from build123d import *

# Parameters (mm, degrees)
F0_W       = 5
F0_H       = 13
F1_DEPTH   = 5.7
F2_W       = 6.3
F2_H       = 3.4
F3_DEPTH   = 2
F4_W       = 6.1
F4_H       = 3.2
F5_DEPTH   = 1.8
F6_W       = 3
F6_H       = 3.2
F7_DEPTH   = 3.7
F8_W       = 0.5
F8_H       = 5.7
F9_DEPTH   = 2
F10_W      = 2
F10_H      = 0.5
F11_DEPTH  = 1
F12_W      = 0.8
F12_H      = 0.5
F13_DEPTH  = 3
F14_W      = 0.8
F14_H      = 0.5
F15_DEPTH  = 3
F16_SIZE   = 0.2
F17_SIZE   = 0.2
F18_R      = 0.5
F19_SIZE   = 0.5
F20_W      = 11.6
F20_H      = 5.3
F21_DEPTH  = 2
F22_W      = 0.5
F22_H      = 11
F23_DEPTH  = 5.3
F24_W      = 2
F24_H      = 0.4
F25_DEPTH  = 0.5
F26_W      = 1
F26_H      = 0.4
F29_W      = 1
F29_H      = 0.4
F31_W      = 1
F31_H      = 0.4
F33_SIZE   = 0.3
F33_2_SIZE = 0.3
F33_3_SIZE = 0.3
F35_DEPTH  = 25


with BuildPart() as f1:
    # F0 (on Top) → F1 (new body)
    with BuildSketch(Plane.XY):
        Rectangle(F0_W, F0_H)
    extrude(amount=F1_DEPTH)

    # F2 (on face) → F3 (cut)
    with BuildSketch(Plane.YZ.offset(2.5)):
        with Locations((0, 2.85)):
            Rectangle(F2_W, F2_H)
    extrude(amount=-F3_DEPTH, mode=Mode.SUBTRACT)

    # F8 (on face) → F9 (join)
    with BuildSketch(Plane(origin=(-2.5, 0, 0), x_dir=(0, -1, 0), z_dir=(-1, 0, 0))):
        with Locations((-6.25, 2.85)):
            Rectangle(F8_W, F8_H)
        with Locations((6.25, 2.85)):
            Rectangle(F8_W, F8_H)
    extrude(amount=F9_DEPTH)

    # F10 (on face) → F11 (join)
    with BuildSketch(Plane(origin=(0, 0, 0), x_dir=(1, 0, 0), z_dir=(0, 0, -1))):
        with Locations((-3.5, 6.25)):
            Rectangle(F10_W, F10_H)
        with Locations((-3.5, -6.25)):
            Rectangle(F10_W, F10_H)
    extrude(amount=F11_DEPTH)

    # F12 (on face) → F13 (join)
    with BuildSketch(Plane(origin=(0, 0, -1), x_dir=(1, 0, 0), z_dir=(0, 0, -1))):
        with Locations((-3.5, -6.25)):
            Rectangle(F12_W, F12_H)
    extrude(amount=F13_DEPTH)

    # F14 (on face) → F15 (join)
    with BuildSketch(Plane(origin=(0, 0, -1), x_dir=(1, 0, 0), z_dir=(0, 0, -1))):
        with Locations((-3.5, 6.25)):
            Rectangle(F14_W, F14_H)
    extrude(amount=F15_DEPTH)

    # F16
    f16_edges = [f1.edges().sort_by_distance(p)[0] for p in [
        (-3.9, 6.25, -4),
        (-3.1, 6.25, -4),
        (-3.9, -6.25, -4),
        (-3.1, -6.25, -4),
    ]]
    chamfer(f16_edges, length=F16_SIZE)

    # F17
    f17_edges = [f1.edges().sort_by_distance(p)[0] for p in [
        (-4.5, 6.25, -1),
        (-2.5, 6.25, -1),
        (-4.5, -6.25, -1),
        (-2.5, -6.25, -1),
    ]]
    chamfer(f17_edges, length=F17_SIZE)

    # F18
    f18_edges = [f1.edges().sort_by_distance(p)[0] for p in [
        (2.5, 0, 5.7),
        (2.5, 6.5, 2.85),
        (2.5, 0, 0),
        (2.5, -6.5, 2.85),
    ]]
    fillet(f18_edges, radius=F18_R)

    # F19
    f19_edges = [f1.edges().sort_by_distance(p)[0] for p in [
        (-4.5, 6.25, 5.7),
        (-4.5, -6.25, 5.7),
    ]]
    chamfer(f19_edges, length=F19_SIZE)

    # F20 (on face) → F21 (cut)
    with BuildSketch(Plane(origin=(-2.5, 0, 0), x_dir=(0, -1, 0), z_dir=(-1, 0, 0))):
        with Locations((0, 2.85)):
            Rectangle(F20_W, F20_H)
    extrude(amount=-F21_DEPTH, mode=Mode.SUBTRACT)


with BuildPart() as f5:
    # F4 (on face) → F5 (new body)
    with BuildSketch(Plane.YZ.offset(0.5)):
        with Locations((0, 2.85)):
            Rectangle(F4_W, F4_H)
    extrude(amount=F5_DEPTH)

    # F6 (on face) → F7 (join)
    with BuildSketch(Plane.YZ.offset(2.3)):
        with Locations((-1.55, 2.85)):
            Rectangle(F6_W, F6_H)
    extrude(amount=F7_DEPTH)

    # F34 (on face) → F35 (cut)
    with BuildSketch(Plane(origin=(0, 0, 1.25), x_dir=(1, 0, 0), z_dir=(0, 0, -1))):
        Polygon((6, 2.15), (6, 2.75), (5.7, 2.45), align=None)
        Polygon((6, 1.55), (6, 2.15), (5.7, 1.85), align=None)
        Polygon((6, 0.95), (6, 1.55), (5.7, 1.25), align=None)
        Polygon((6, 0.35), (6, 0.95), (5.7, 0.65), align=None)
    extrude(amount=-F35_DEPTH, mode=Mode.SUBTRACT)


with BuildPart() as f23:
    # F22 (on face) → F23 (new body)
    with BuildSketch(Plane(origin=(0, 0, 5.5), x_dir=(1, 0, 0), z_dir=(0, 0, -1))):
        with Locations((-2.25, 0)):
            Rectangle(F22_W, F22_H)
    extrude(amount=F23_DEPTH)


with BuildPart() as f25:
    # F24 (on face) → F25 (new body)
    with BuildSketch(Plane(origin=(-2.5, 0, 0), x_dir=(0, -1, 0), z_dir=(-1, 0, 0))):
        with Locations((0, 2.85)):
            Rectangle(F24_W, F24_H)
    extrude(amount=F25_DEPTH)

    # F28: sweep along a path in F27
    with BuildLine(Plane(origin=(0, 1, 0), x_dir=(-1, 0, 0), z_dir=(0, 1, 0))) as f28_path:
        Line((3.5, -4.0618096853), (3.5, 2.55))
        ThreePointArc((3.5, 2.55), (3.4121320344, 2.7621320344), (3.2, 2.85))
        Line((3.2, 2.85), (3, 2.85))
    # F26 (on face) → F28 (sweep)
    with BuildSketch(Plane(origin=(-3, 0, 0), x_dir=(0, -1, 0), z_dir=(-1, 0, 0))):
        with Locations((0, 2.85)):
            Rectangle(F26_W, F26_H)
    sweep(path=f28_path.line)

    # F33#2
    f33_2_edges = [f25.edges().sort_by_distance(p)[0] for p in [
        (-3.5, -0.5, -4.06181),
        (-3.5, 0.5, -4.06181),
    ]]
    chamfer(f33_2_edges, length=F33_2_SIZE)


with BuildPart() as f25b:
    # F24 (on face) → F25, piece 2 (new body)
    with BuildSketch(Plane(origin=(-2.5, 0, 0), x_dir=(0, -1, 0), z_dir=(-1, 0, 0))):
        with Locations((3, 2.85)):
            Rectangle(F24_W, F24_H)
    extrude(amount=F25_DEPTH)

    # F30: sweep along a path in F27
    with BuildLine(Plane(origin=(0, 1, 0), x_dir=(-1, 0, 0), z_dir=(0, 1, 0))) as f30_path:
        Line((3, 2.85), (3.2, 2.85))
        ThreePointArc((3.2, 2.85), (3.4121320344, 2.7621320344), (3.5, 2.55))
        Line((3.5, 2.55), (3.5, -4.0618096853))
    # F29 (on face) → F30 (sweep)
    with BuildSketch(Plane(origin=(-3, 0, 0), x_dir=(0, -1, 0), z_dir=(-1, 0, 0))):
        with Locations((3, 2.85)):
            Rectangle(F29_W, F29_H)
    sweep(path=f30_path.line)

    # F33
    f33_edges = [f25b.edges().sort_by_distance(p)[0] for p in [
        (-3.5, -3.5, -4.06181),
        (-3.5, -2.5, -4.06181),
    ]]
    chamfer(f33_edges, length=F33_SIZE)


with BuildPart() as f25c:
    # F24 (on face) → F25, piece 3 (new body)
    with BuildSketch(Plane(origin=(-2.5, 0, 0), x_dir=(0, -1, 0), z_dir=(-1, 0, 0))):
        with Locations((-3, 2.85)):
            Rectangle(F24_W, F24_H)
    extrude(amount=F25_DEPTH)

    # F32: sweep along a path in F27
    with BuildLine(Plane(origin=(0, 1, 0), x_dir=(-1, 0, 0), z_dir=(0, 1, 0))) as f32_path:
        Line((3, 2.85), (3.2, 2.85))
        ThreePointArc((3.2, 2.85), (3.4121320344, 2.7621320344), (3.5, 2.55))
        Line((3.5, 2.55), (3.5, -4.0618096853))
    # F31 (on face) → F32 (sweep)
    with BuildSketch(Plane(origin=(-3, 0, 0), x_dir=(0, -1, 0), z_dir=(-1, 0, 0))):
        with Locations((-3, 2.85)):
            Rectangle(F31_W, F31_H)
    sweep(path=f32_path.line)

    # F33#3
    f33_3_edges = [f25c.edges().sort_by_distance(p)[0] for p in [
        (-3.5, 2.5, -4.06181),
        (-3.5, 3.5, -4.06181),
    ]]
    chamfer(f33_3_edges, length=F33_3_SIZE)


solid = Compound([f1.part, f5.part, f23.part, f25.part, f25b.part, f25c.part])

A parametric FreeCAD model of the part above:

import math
import FreeCAD as App
import Part
import Sketcher


def edges_at(feature, points):
    """Names of the edges that pass closest to the given points."""
    edges = feature.Shape.Edges
    near = lambda p: min(range(len(edges)), key=lambda i: edges[i].distToShape(Part.Vertex(*p))[0])
    return sorted({f"Edge{near(p) + 1}" for p in points})

doc = App.newDocument("Part")
body = doc.addObject("PartDesign::Body", "Body")

sketch1 = body.newObject("Sketcher::SketchObject", "Sketch")
sketch1.AttachmentSupport = (doc.getObject("XY_Plane"), [""])
sketch1.MapMode = "FlatFace"
sketch1.addGeometry([
    Part.LineSegment(App.Vector(-2.5, 6.5, 0), App.Vector(-2.5, -6.5, 0)),
    Part.LineSegment(App.Vector(-2.5, -6.5, 0), App.Vector(2.5, -6.5, 0)),
    Part.LineSegment(App.Vector(2.5, -6.5, 0), App.Vector(2.5, 6.5, 0)),
    Part.LineSegment(App.Vector(2.5, 6.5, 0), App.Vector(-2.5, 6.5, 0)),
], False)
sketch1.addConstraint([
    Sketcher.Constraint("Coincident", 0, 2, 1, 1),
    Sketcher.Constraint("Coincident", 1, 2, 2, 1),
    Sketcher.Constraint("Coincident", 2, 2, 3, 1),
    Sketcher.Constraint("Coincident", 3, 2, 0, 1),
    Sketcher.Constraint("Vertical", 0),
    Sketcher.Constraint("Horizontal", 1),
    Sketcher.Constraint("Vertical", 2),
    Sketcher.Constraint("Horizontal", 3),
    Sketcher.Constraint("Symmetric", 0, 2, 2, 2, -1, 1),
    Sketcher.Constraint("DistanceX", 1, 1, 1, 2, 5.0),
    Sketcher.Constraint("DistanceY", 0, 2, 0, 1, 13.0),
])
pad1 = body.newObject("PartDesign::Pad", "Pad")
pad1.Profile = sketch1
pad1.Length = 5.7

sketch2 = body.newObject("Sketcher::SketchObject", "Sketch001")
sketch2.AttachmentSupport = (doc.getObject("YZ_Plane"), [""])
sketch2.MapMode = "FlatFace"
sketch2.AttachmentOffset = App.Placement(App.Vector(0, 0, 2.5), App.Rotation())
sketch2.addGeometry([
    Part.LineSegment(App.Vector(-3.15, 4.55, 0), App.Vector(-3.15, 1.15, 0)),
    Part.LineSegment(App.Vector(-3.15, 1.15, 0), App.Vector(3.15, 1.15, 0)),
    Part.LineSegment(App.Vector(3.15, 1.15, 0), App.Vector(3.15, 4.55, 0)),
    Part.LineSegment(App.Vector(3.15, 4.55, 0), App.Vector(-3.15, 4.55, 0)),
], False)
sketch2.addConstraint([
    Sketcher.Constraint("Coincident", 0, 2, 1, 1),
    Sketcher.Constraint("Coincident", 1, 2, 2, 1),
    Sketcher.Constraint("Coincident", 2, 2, 3, 1),
    Sketcher.Constraint("Coincident", 3, 2, 0, 1),
    Sketcher.Constraint("Vertical", 0),
    Sketcher.Constraint("Horizontal", 1),
    Sketcher.Constraint("Vertical", 2),
    Sketcher.Constraint("Horizontal", 3),
    Sketcher.Constraint("DistanceX", 1, 1, 1, 2, 6.3),
    Sketcher.Constraint("DistanceY", 0, 2, 0, 1, 3.4),
    Sketcher.Constraint("DistanceX", 0, 2, -1, 1, 3.15),
    Sketcher.Constraint("DistanceY", -1, 1, 0, 2, 1.15),
])
pocket1 = body.newObject("PartDesign::Pocket", "Pocket")
pocket1.Profile = sketch2
pocket1.Length = 2

sketch3 = body.newObject("Sketcher::SketchObject", "Sketch002")
sketch3.AttachmentSupport = (doc.getObject("YZ_Plane"), [""])
sketch3.MapMode = "FlatFace"
sketch3.AttachmentOffset = App.Placement(App.Vector(0, 0, -2.5), App.Rotation())
sketch3.addGeometry([
    Part.LineSegment(App.Vector(6.5, 5.7, 0), App.Vector(6.5, 0, 0)),
    Part.LineSegment(App.Vector(6.5, 0, 0), App.Vector(6, 0, 0)),
    Part.LineSegment(App.Vector(6, 0, 0), App.Vector(6, 5.7, 0)),
    Part.LineSegment(App.Vector(6, 5.7, 0), App.Vector(6.5, 5.7, 0)),
    Part.LineSegment(App.Vector(-6, 5.7, 0), App.Vector(-6, 0, 0)),
    Part.LineSegment(App.Vector(-6, 0, 0), App.Vector(-6.5, 0, 0)),
    Part.LineSegment(App.Vector(-6.5, 0, 0), App.Vector(-6.5, 5.7, 0)),
    Part.LineSegment(App.Vector(-6.5, 5.7, 0), App.Vector(-6, 5.7, 0)),
], False)
sketch3.addConstraint([
    Sketcher.Constraint("Coincident", 0, 2, 1, 1),
    Sketcher.Constraint("Coincident", 1, 2, 2, 1),
    Sketcher.Constraint("Coincident", 2, 2, 3, 1),
    Sketcher.Constraint("Coincident", 3, 2, 0, 1),
    Sketcher.Constraint("Coincident", 4, 2, 5, 1),
    Sketcher.Constraint("Coincident", 5, 2, 6, 1),
    Sketcher.Constraint("Coincident", 6, 2, 7, 1),
    Sketcher.Constraint("Coincident", 7, 2, 4, 1),
    Sketcher.Constraint("Vertical", 0),
    Sketcher.Constraint("Horizontal", 1),
    Sketcher.Constraint("Vertical", 2),
    Sketcher.Constraint("Horizontal", 3),
    Sketcher.Constraint("Vertical", 4),
    Sketcher.Constraint("Horizontal", 5),
    Sketcher.Constraint("Vertical", 6),
    Sketcher.Constraint("Horizontal", 7),
    Sketcher.Constraint("Symmetric", 1, 2, 4, 2, -1, 1),
    Sketcher.Constraint("Symmetric", 0, 2, 5, 2, -2),
    Sketcher.Constraint("Horizontal", 3, 2, 6, 2),
    Sketcher.Constraint("DistanceX", 1, 2, 1, 1, 0.5),
    Sketcher.Constraint("DistanceY", 0, 2, 0, 1, 5.7),
    Sketcher.Constraint("DistanceX", -1, 1, 1, 2, 6.0),
])
pad2 = body.newObject("PartDesign::Pad", "Pad001")
pad2.Profile = sketch3
pad2.Length = 2
pad2.Reversed = True

sketch4 = body.newObject("Sketcher::SketchObject", "Sketch003")
sketch4.AttachmentSupport = (doc.getObject("XY_Plane"), [""])
sketch4.MapMode = "FlatFace"
sketch4.addGeometry([
    Part.LineSegment(App.Vector(-4.5, -6.5, 0), App.Vector(-4.5, -6, 0)),
    Part.LineSegment(App.Vector(-4.5, -6, 0), App.Vector(-2.5, -6, 0)),
    Part.LineSegment(App.Vector(-2.5, -6, 0), App.Vector(-2.5, -6.5, 0)),
    Part.LineSegment(App.Vector(-2.5, -6.5, 0), App.Vector(-4.5, -6.5, 0)),
    Part.LineSegment(App.Vector(-4.5, 6, 0), App.Vector(-4.5, 6.5, 0)),
    Part.LineSegment(App.Vector(-4.5, 6.5, 0), App.Vector(-2.5, 6.5, 0)),
    Part.LineSegment(App.Vector(-2.5, 6.5, 0), App.Vector(-2.5, 6, 0)),
    Part.LineSegment(App.Vector(-2.5, 6, 0), App.Vector(-4.5, 6, 0)),
], False)
sketch4.addConstraint([
    Sketcher.Constraint("Coincident", 0, 2, 1, 1),
    Sketcher.Constraint("Coincident", 1, 2, 2, 1),
    Sketcher.Constraint("Coincident", 2, 2, 3, 1),
    Sketcher.Constraint("Coincident", 3, 2, 0, 1),
    Sketcher.Constraint("Coincident", 4, 2, 5, 1),
    Sketcher.Constraint("Coincident", 5, 2, 6, 1),
    Sketcher.Constraint("Coincident", 6, 2, 7, 1),
    Sketcher.Constraint("Coincident", 7, 2, 4, 1),
    Sketcher.Constraint("Vertical", 0),
    Sketcher.Constraint("Horizontal", 1),
    Sketcher.Constraint("Vertical", 2),
    Sketcher.Constraint("Horizontal", 3),
    Sketcher.Constraint("Vertical", 4),
    Sketcher.Constraint("Horizontal", 5),
    Sketcher.Constraint("Vertical", 6),
    Sketcher.Constraint("Horizontal", 7),
    Sketcher.Constraint("Symmetric", 3, 2, 4, 2, -1),
    Sketcher.Constraint("Symmetric", 1, 2, 6, 2, -1),
    Sketcher.Constraint("DistanceX", 1, 1, 1, 2, 2.0),
    Sketcher.Constraint("DistanceY", 0, 1, 0, 2, 0.5),
    Sketcher.Constraint("DistanceY", 0, 2, -1, 1, 6.0),
    Sketcher.Constraint("DistanceX", 0, 2, -1, 1, 4.5),
])
pad3 = body.newObject("PartDesign::Pad", "Pad002")
pad3.Profile = sketch4
pad3.Length = 1
pad3.Reversed = True

sketch5 = body.newObject("Sketcher::SketchObject", "Sketch004")
sketch5.AttachmentSupport = (doc.getObject("XY_Plane"), [""])
sketch5.MapMode = "FlatFace"
sketch5.AttachmentOffset = App.Placement(App.Vector(0, 0, -1), App.Rotation())
sketch5.addGeometry([
    Part.LineSegment(App.Vector(-3.9, 6, 0), App.Vector(-3.9, 6.5, 0)),
    Part.LineSegment(App.Vector(-3.9, 6.5, 0), App.Vector(-3.1, 6.5, 0)),
    Part.LineSegment(App.Vector(-3.1, 6.5, 0), App.Vector(-3.1, 6, 0)),
    Part.LineSegment(App.Vector(-3.1, 6, 0), App.Vector(-3.9, 6, 0)),
], False)
sketch5.addConstraint([
    Sketcher.Constraint("Coincident", 0, 2, 1, 1),
    Sketcher.Constraint("Coincident", 1, 2, 2, 1),
    Sketcher.Constraint("Coincident", 2, 2, 3, 1),
    Sketcher.Constraint("Coincident", 3, 2, 0, 1),
    Sketcher.Constraint("Vertical", 0),
    Sketcher.Constraint("Horizontal", 1),
    Sketcher.Constraint("Vertical", 2),
    Sketcher.Constraint("Horizontal", 3),
    Sketcher.Constraint("DistanceX", 1, 1, 1, 2, 0.8),
    Sketcher.Constraint("DistanceY", 0, 1, 0, 2, 0.5),
    Sketcher.Constraint("DistanceY", -1, 1, 2, 2, 6.0),
    Sketcher.Constraint("DistanceX", 0, 2, -1, 1, 3.9),
])
pad4 = body.newObject("PartDesign::Pad", "Pad003")
pad4.Profile = sketch5
pad4.Length = 3
pad4.Reversed = True

sketch6 = body.newObject("Sketcher::SketchObject", "Sketch005")
sketch6.AttachmentSupport = (doc.getObject("XY_Plane"), [""])
sketch6.MapMode = "FlatFace"
sketch6.AttachmentOffset = App.Placement(App.Vector(0, 0, -1), App.Rotation())
sketch6.addGeometry([
    Part.LineSegment(App.Vector(-3.9, -6.5, 0), App.Vector(-3.9, -6, 0)),
    Part.LineSegment(App.Vector(-3.9, -6, 0), App.Vector(-3.1, -6, 0)),
    Part.LineSegment(App.Vector(-3.1, -6, 0), App.Vector(-3.1, -6.5, 0)),
    Part.LineSegment(App.Vector(-3.1, -6.5, 0), App.Vector(-3.9, -6.5, 0)),
], False)
sketch6.addConstraint([
    Sketcher.Constraint("Coincident", 0, 2, 1, 1),
    Sketcher.Constraint("Coincident", 1, 2, 2, 1),
    Sketcher.Constraint("Coincident", 2, 2, 3, 1),
    Sketcher.Constraint("Coincident", 3, 2, 0, 1),
    Sketcher.Constraint("Vertical", 0),
    Sketcher.Constraint("Horizontal", 1),
    Sketcher.Constraint("Vertical", 2),
    Sketcher.Constraint("Horizontal", 3),
    Sketcher.Constraint("DistanceX", 1, 1, 1, 2, 0.8),
    Sketcher.Constraint("DistanceY", 0, 1, 0, 2, 0.5),
    Sketcher.Constraint("DistanceY", 0, 2, -1, 1, 6.0),
    Sketcher.Constraint("DistanceX", 0, 2, -1, 1, 3.9),
])
pad5 = body.newObject("PartDesign::Pad", "Pad004")
pad5.Profile = sketch6
pad5.Length = 3
pad5.Reversed = True
doc.recompute()

chamfer = body.newObject("PartDesign::Chamfer", "Chamfer")
chamfer.Base = (pad5, edges_at(pad5, [
    (-3.9, 6.25, -4),
    (-3.1, 6.25, -4),
    (-3.9, -6.25, -4),
    (-3.1, -6.25, -4),
]))
chamfer.Size = 0.2
doc.recompute()

chamfer2 = body.newObject("PartDesign::Chamfer", "Chamfer001")
chamfer2.Base = (chamfer, edges_at(chamfer, [
    (-4.5, 6.25, -1),
    (-2.5, 6.25, -1),
    (-4.5, -6.25, -1),
    (-2.5, -6.25, -1),
]))
chamfer2.Size = 0.2
doc.recompute()

fillet = body.newObject("PartDesign::Fillet", "Fillet")
fillet.Base = (chamfer2, edges_at(chamfer2, [
    (2.5, 0, 5.7),
    (2.5, 6.5, 2.85),
    (2.5, 0, 0),
    (2.5, -6.5, 2.85),
]))
fillet.Radius = 0.5
doc.recompute()

chamfer3 = body.newObject("PartDesign::Chamfer", "Chamfer002")
chamfer3.Base = (fillet, edges_at(fillet, [(-4.5, 6.25, 5.7), (-4.5, -6.25, 5.7)]))
chamfer3.Size = 0.5

sketch7 = body.newObject("Sketcher::SketchObject", "Sketch006")
sketch7.AttachmentSupport = (doc.getObject("YZ_Plane"), [""])
sketch7.MapMode = "FlatFace"
sketch7.AttachmentOffset = App.Placement(App.Vector(0, 0, -2.5), App.Rotation())
sketch7.addGeometry([
    Part.LineSegment(App.Vector(5.8, 5.5, 0), App.Vector(5.8, 0.2, 0)),
    Part.LineSegment(App.Vector(5.8, 0.2, 0), App.Vector(-5.8, 0.2, 0)),
    Part.LineSegment(App.Vector(-5.8, 0.2, 0), App.Vector(-5.8, 5.5, 0)),
    Part.LineSegment(App.Vector(-5.8, 5.5, 0), App.Vector(5.8, 5.5, 0)),
], False)
sketch7.addConstraint([
    Sketcher.Constraint("Coincident", 0, 2, 1, 1),
    Sketcher.Constraint("Coincident", 1, 2, 2, 1),
    Sketcher.Constraint("Coincident", 2, 2, 3, 1),
    Sketcher.Constraint("Coincident", 3, 2, 0, 1),
    Sketcher.Constraint("Vertical", 0),
    Sketcher.Constraint("Horizontal", 1),
    Sketcher.Constraint("Vertical", 2),
    Sketcher.Constraint("Horizontal", 3),
    Sketcher.Constraint("DistanceX", 1, 2, 1, 1, 11.6),
    Sketcher.Constraint("DistanceY", 0, 2, 0, 1, 5.3),
    Sketcher.Constraint("DistanceX", -1, 1, 0, 2, 5.8),
    Sketcher.Constraint("DistanceY", -1, 1, 0, 2, 0.2),
])
pocket2 = body.newObject("PartDesign::Pocket", "Pocket001")
pocket2.Profile = sketch7
pocket2.Length = 2
pocket2.Reversed = True
body2 = doc.addObject("PartDesign::Body", "Body001")

sketch8 = body2.newObject("Sketcher::SketchObject", "Sketch007")
sketch8.AttachmentSupport = (doc.getObject("YZ_Plane001"), [""])
sketch8.MapMode = "FlatFace"
sketch8.AttachmentOffset = App.Placement(App.Vector(0, 0, 0.5), App.Rotation())
sketch8.addGeometry([
    Part.LineSegment(App.Vector(-3.05, 4.45, 0), App.Vector(-3.05, 1.25, 0)),
    Part.LineSegment(App.Vector(-3.05, 1.25, 0), App.Vector(3.05, 1.25, 0)),
    Part.LineSegment(App.Vector(3.05, 1.25, 0), App.Vector(3.05, 4.45, 0)),
    Part.LineSegment(App.Vector(3.05, 4.45, 0), App.Vector(-3.05, 4.45, 0)),
], False)
sketch8.addConstraint([
    Sketcher.Constraint("Coincident", 0, 2, 1, 1),
    Sketcher.Constraint("Coincident", 1, 2, 2, 1),
    Sketcher.Constraint("Coincident", 2, 2, 3, 1),
    Sketcher.Constraint("Coincident", 3, 2, 0, 1),
    Sketcher.Constraint("Vertical", 0),
    Sketcher.Constraint("Horizontal", 1),
    Sketcher.Constraint("Vertical", 2),
    Sketcher.Constraint("Horizontal", 3),
    Sketcher.Constraint("DistanceX", 1, 1, 1, 2, 6.1),
    Sketcher.Constraint("DistanceY", 0, 2, 0, 1, 3.2),
    Sketcher.Constraint("DistanceX", 0, 2, -1, 1, 3.05),
    Sketcher.Constraint("DistanceY", -1, 1, 0, 2, 1.25),
])
pad6 = body2.newObject("PartDesign::Pad", "Pad005")
pad6.Profile = sketch8
pad6.Length = 1.8

sketch9 = body2.newObject("Sketcher::SketchObject", "Sketch008")
sketch9.AttachmentSupport = (doc.getObject("YZ_Plane001"), [""])
sketch9.MapMode = "FlatFace"
sketch9.AttachmentOffset = App.Placement(App.Vector(0, 0, 2.3), App.Rotation())
sketch9.addGeometry([
    Part.LineSegment(App.Vector(-3.05, 4.45, 0), App.Vector(-3.05, 1.25, 0)),
    Part.LineSegment(App.Vector(-3.05, 1.25, 0), App.Vector(-0.05, 1.25, 0)),
    Part.LineSegment(App.Vector(-0.05, 1.25, 0), App.Vector(-0.05, 4.45, 0)),
    Part.LineSegment(App.Vector(-0.05, 4.45, 0), App.Vector(-3.05, 4.45, 0)),
], False)
sketch9.addConstraint([
    Sketcher.Constraint("Coincident", 0, 2, 1, 1),
    Sketcher.Constraint("Coincident", 1, 2, 2, 1),
    Sketcher.Constraint("Coincident", 2, 2, 3, 1),
    Sketcher.Constraint("Coincident", 3, 2, 0, 1),
    Sketcher.Constraint("Vertical", 0),
    Sketcher.Constraint("Horizontal", 1),
    Sketcher.Constraint("Vertical", 2),
    Sketcher.Constraint("Horizontal", 3),
    Sketcher.Constraint("DistanceX", 1, 1, 1, 2, 3.0),
    Sketcher.Constraint("DistanceY", 0, 2, 0, 1, 3.2),
    Sketcher.Constraint("DistanceX", 0, 2, -1, 1, 3.05),
    Sketcher.Constraint("DistanceY", -1, 1, 0, 2, 1.25),
])
pad7 = body2.newObject("PartDesign::Pad", "Pad006")
pad7.Profile = sketch9
pad7.Length = 3.7

sketch10 = body2.newObject("Sketcher::SketchObject", "Sketch009")
sketch10.AttachmentSupport = (doc.getObject("XY_Plane001"), [""])
sketch10.MapMode = "FlatFace"
sketch10.AttachmentOffset = App.Placement(App.Vector(0, 0, 1.25), App.Rotation())
sketch10.addGeometry([
    Part.LineSegment(App.Vector(6, -2.15, 0), App.Vector(6, -2.75, 0)),
    Part.LineSegment(App.Vector(6, -2.75, 0), App.Vector(5.7, -2.45, 0)),
    Part.LineSegment(App.Vector(5.7, -2.45, 0), App.Vector(6, -2.15, 0)),
    Part.LineSegment(App.Vector(6, -1.55, 0), App.Vector(6, -2.15, 0)),
    Part.LineSegment(App.Vector(6, -2.15, 0), App.Vector(5.7, -1.85, 0)),
    Part.LineSegment(App.Vector(5.7, -1.85, 0), App.Vector(6, -1.55, 0)),
    Part.LineSegment(App.Vector(6, -0.95, 0), App.Vector(6, -1.55, 0)),
    Part.LineSegment(App.Vector(6, -1.55, 0), App.Vector(5.7, -1.25, 0)),
    Part.LineSegment(App.Vector(5.7, -1.25, 0), App.Vector(6, -0.95, 0)),
    Part.LineSegment(App.Vector(6, -0.35, 0), App.Vector(6, -0.95, 0)),
    Part.LineSegment(App.Vector(6, -0.95, 0), App.Vector(5.7, -0.65, 0)),
    Part.LineSegment(App.Vector(5.7, -0.65, 0), App.Vector(6, -0.35, 0)),
], False)
sketch10.addConstraint([
    Sketcher.Constraint("Coincident", 0, 2, 1, 1),
    Sketcher.Constraint("Coincident", 1, 2, 2, 1),
    Sketcher.Constraint("Coincident", 2, 2, 0, 1),
    Sketcher.Constraint("Coincident", 3, 2, 4, 1),
    Sketcher.Constraint("Coincident", 4, 2, 5, 1),
    Sketcher.Constraint("Coincident", 5, 2, 3, 1),
    Sketcher.Constraint("Coincident", 6, 2, 7, 1),
    Sketcher.Constraint("Coincident", 7, 2, 8, 1),
    Sketcher.Constraint("Coincident", 8, 2, 6, 1),
    Sketcher.Constraint("Coincident", 9, 2, 10, 1),
    Sketcher.Constraint("Coincident", 10, 2, 11, 1),
    Sketcher.Constraint("Coincident", 11, 2, 9, 1),
    Sketcher.Constraint("Vertical", 0),
    Sketcher.Constraint("Vertical", 3),
    Sketcher.Constraint("Vertical", 6),
    Sketcher.Constraint("Vertical", 9),
    Sketcher.Constraint("Coincident", 3, 2, 2, 2),
    Sketcher.Constraint("Coincident", 6, 2, 5, 2),
    Sketcher.Constraint("Coincident", 9, 2, 8, 2),
    Sketcher.Constraint("Perpendicular", 1, 2),
    Sketcher.Constraint("Perpendicular", 2, 4),
    Sketcher.Constraint("Perpendicular", 4, 5),
    Sketcher.Constraint("Perpendicular", 5, 7),
    Sketcher.Constraint("Perpendicular", 7, 8),
    Sketcher.Constraint("Perpendicular", 8, 10),
    Sketcher.Constraint("Perpendicular", 10, 11),
    Sketcher.Constraint("Vertical", 1, 2, 4, 2),
    Sketcher.Constraint("Vertical", 4, 2, 7, 2),
    Sketcher.Constraint("Vertical", 7, 2, 10, 2),
    Sketcher.Constraint("Equal", 1, 2),
    Sketcher.Constraint("DistanceY", 0, 2, 0, 1, 0.6),
    Sketcher.Constraint("DistanceX", -1, 1, 0, 2, 6.0),
    Sketcher.Constraint("DistanceY", 0, 2, -1, 1, 2.75),
])
pocket3 = body2.newObject("PartDesign::Pocket", "Pocket002")
pocket3.Profile = sketch10
pocket3.Length = 25
pocket3.Reversed = True
body3 = doc.addObject("PartDesign::Body", "Body002")

sketch11 = body3.newObject("Sketcher::SketchObject", "Sketch010")
sketch11.AttachmentSupport = (doc.getObject("XY_Plane002"), [""])
sketch11.MapMode = "FlatFace"
sketch11.AttachmentOffset = App.Placement(App.Vector(0, 0, 5.5), App.Rotation())
sketch11.addGeometry([
    Part.LineSegment(App.Vector(-2.5, -5.5, 0), App.Vector(-2.5, 5.5, 0)),
    Part.LineSegment(App.Vector(-2.5, 5.5, 0), App.Vector(-2, 5.5, 0)),
    Part.LineSegment(App.Vector(-2, 5.5, 0), App.Vector(-2, -5.5, 0)),
    Part.LineSegment(App.Vector(-2, -5.5, 0), App.Vector(-2.5, -5.5, 0)),
], False)
sketch11.addConstraint([
    Sketcher.Constraint("Coincident", 0, 2, 1, 1),
    Sketcher.Constraint("Coincident", 1, 2, 2, 1),
    Sketcher.Constraint("Coincident", 2, 2, 3, 1),
    Sketcher.Constraint("Coincident", 3, 2, 0, 1),
    Sketcher.Constraint("Vertical", 0),
    Sketcher.Constraint("Horizontal", 1),
    Sketcher.Constraint("Vertical", 2),
    Sketcher.Constraint("Horizontal", 3),
    Sketcher.Constraint("DistanceY", 0, 1, 0, 2, 11.0),
    Sketcher.Constraint("DistanceX", 1, 1, 1, 2, 0.5),
    Sketcher.Constraint("DistanceX", 1, 2, -1, 1, 2.0),
    Sketcher.Constraint("DistanceY", -1, 1, 0, 2, 5.5),
])
pad8 = body3.newObject("PartDesign::Pad", "Pad007")
pad8.Profile = sketch11
pad8.Length = 5.3
pad8.Reversed = True
body4 = doc.addObject("PartDesign::Body", "Body003")

sketch12 = body4.newObject("Sketcher::SketchObject", "Sketch011")
sketch12.AttachmentSupport = (doc.getObject("YZ_Plane003"), [""])
sketch12.MapMode = "FlatFace"
sketch12.AttachmentOffset = App.Placement(App.Vector(0, 0, -2.5), App.Rotation())
sketch12.addGeometry([
    Part.LineSegment(App.Vector(1, 3.05, 0), App.Vector(1, 2.65, 0)),
    Part.LineSegment(App.Vector(1, 2.65, 0), App.Vector(-1, 2.65, 0)),
    Part.LineSegment(App.Vector(-1, 2.65, 0), App.Vector(-1, 3.05, 0)),
    Part.LineSegment(App.Vector(-1, 3.05, 0), App.Vector(1, 3.05, 0)),
], False)
sketch12.addConstraint([
    Sketcher.Constraint("Coincident", 0, 2, 1, 1),
    Sketcher.Constraint("Coincident", 1, 2, 2, 1),
    Sketcher.Constraint("Coincident", 2, 2, 3, 1),
    Sketcher.Constraint("Coincident", 3, 2, 0, 1),
    Sketcher.Constraint("Vertical", 0),
    Sketcher.Constraint("Horizontal", 1),
    Sketcher.Constraint("Vertical", 2),
    Sketcher.Constraint("Horizontal", 3),
    Sketcher.Constraint("DistanceX", 1, 2, 1, 1, 2.0),
    Sketcher.Constraint("DistanceY", 0, 2, 0, 1, 0.4),
    Sketcher.Constraint("DistanceX", -1, 1, 0, 2, 1.0),
    Sketcher.Constraint("DistanceY", -1, 1, 0, 2, 2.65),
])
pad9 = body4.newObject("PartDesign::Pad", "Pad008")
pad9.Profile = sketch12
pad9.Length = 0.5
pad9.Reversed = True

sketch13 = body4.newObject("Sketcher::SketchObject", "Sketch012")
sketch13.AttachmentSupport = (doc.getObject("YZ_Plane003"), [""])
sketch13.MapMode = "FlatFace"
sketch13.AttachmentOffset = App.Placement(App.Vector(0, 0, -3), App.Rotation())
sketch13.addGeometry([
    Part.LineSegment(App.Vector(0.5, 3.05, 0), App.Vector(0.5, 2.65, 0)),
    Part.LineSegment(App.Vector(0.5, 2.65, 0), App.Vector(-0.5, 2.65, 0)),
    Part.LineSegment(App.Vector(-0.5, 2.65, 0), App.Vector(-0.5, 3.05, 0)),
    Part.LineSegment(App.Vector(-0.5, 3.05, 0), App.Vector(0.5, 3.05, 0)),
], False)
sketch13.addConstraint([
    Sketcher.Constraint("Coincident", 0, 2, 1, 1),
    Sketcher.Constraint("Coincident", 1, 2, 2, 1),
    Sketcher.Constraint("Coincident", 2, 2, 3, 1),
    Sketcher.Constraint("Coincident", 3, 2, 0, 1),
    Sketcher.Constraint("Vertical", 0),
    Sketcher.Constraint("Horizontal", 1),
    Sketcher.Constraint("Vertical", 2),
    Sketcher.Constraint("Horizontal", 3),
    Sketcher.Constraint("DistanceX", 1, 2, 1, 1, 1.0),
    Sketcher.Constraint("DistanceY", 0, 2, 0, 1, 0.4),
    Sketcher.Constraint("DistanceX", -1, 1, 0, 2, 0.5),
    Sketcher.Constraint("DistanceY", -1, 1, 0, 2, 2.65),
])

sketch14 = body4.newObject("Sketcher::SketchObject", "Sketch013")
sketch14.AttachmentSupport = (doc.getObject("XZ_Plane003"), [""])
sketch14.MapMode = "FlatFace"
sketch14.AttachmentOffset = App.Placement(App.Vector(0, 0, -1), App.Rotation())
sketch14.addGeometry([
    Part.LineSegment(App.Vector(-3.5, -4.06181, 0), App.Vector(-3.5, 2.55, 0)),
    Part.ArcOfCircle(Part.Circle(App.Vector(-3.2, 2.55, 0), App.Vector(0, 0, 1), 0.3), math.radians(90), math.radians(180)),
    Part.LineSegment(App.Vector(-3.2, 2.85, 0), App.Vector(-3, 2.85, 0)),
], False)
sketch14.addConstraint([
    Sketcher.Constraint("Tangent", 0, 2, 1, 2),
    Sketcher.Constraint("Tangent", 1, 1, 2, 1),
    Sketcher.Constraint("Vertical", 0),
    Sketcher.Constraint("Horizontal", 2),
    Sketcher.Constraint("Radius", 1, 0.3),
    Sketcher.Constraint("DistanceX", 2, 1, 2, 2, 0.2),
    Sketcher.Constraint("DistanceX", 2, 2, -1, 1, 3.0),
    Sketcher.Constraint("DistanceY", -1, 1, 1, 3, 2.55),
    Sketcher.Constraint("DistanceY", 0, 1, 0, 2, 6.61181),
])
doc.recompute()

additivepipe = body4.newObject("PartDesign::AdditivePipe", "AdditivePipe")
additivepipe.Profile = sketch13
additivepipe.Spine = (sketch14, ["Edge1", "Edge2", "Edge3"])
doc.recompute()

chamfer4 = body4.newObject("PartDesign::Chamfer", "Chamfer003")
chamfer4.Base = (additivepipe, edges_at(additivepipe, [(-3.5, -0.5, -4.062), (-3.5, 0.5, -4.062)]))
chamfer4.Size = 0.3
body5 = doc.addObject("PartDesign::Body", "Body004")

sketch15 = body5.newObject("Sketcher::SketchObject", "Sketch014")
sketch15.AttachmentSupport = (doc.getObject("YZ_Plane004"), [""])
sketch15.MapMode = "FlatFace"
sketch15.AttachmentOffset = App.Placement(App.Vector(0, 0, -2.5), App.Rotation())
sketch15.addGeometry([
    Part.LineSegment(App.Vector(-2, 3.05, 0), App.Vector(-2, 2.65, 0)),
    Part.LineSegment(App.Vector(-2, 2.65, 0), App.Vector(-4, 2.65, 0)),
    Part.LineSegment(App.Vector(-4, 2.65, 0), App.Vector(-4, 3.05, 0)),
    Part.LineSegment(App.Vector(-4, 3.05, 0), App.Vector(-2, 3.05, 0)),
], False)
sketch15.addConstraint([
    Sketcher.Constraint("Coincident", 0, 2, 1, 1),
    Sketcher.Constraint("Coincident", 1, 2, 2, 1),
    Sketcher.Constraint("Coincident", 2, 2, 3, 1),
    Sketcher.Constraint("Coincident", 3, 2, 0, 1),
    Sketcher.Constraint("Vertical", 0),
    Sketcher.Constraint("Horizontal", 1),
    Sketcher.Constraint("Vertical", 2),
    Sketcher.Constraint("Horizontal", 3),
    Sketcher.Constraint("DistanceX", 1, 2, 1, 1, 2.0),
    Sketcher.Constraint("DistanceY", 0, 2, 0, 1, 0.4),
    Sketcher.Constraint("DistanceX", 0, 2, -1, 1, 2.0),
    Sketcher.Constraint("DistanceY", -1, 1, 0, 2, 2.65),
])
pad10 = body5.newObject("PartDesign::Pad", "Pad009")
pad10.Profile = sketch15
pad10.Length = 0.5
pad10.Reversed = True

sketch16 = body5.newObject("Sketcher::SketchObject", "Sketch015")
sketch16.AttachmentSupport = (doc.getObject("YZ_Plane004"), [""])
sketch16.MapMode = "FlatFace"
sketch16.AttachmentOffset = App.Placement(App.Vector(0, 0, -3), App.Rotation())
sketch16.addGeometry([
    Part.LineSegment(App.Vector(-2.5, 3.05, 0), App.Vector(-2.5, 2.65, 0)),
    Part.LineSegment(App.Vector(-2.5, 2.65, 0), App.Vector(-3.5, 2.65, 0)),
    Part.LineSegment(App.Vector(-3.5, 2.65, 0), App.Vector(-3.5, 3.05, 0)),
    Part.LineSegment(App.Vector(-3.5, 3.05, 0), App.Vector(-2.5, 3.05, 0)),
], False)
sketch16.addConstraint([
    Sketcher.Constraint("Coincident", 0, 2, 1, 1),
    Sketcher.Constraint("Coincident", 1, 2, 2, 1),
    Sketcher.Constraint("Coincident", 2, 2, 3, 1),
    Sketcher.Constraint("Coincident", 3, 2, 0, 1),
    Sketcher.Constraint("Vertical", 0),
    Sketcher.Constraint("Horizontal", 1),
    Sketcher.Constraint("Vertical", 2),
    Sketcher.Constraint("Horizontal", 3),
    Sketcher.Constraint("DistanceX", 1, 2, 1, 1, 1.0),
    Sketcher.Constraint("DistanceY", 0, 2, 0, 1, 0.4),
    Sketcher.Constraint("DistanceX", 0, 2, -1, 1, 2.5),
    Sketcher.Constraint("DistanceY", -1, 1, 0, 2, 2.65),
])

sketch17 = body5.newObject("Sketcher::SketchObject", "Sketch016")
sketch17.AttachmentSupport = (doc.getObject("XZ_Plane004"), [""])
sketch17.MapMode = "FlatFace"
sketch17.AttachmentOffset = App.Placement(App.Vector(0, 0, -1), App.Rotation())
sketch17.addGeometry([
    Part.LineSegment(App.Vector(-3, 2.85, 0), App.Vector(-3.2, 2.85, 0)),
    Part.ArcOfCircle(Part.Circle(App.Vector(-3.2, 2.55, 0), App.Vector(0, 0, 1), 0.3), math.radians(90), math.radians(180)),
    Part.LineSegment(App.Vector(-3.5, 2.55, 0), App.Vector(-3.5, -4.06181, 0)),
], False)
sketch17.addConstraint([
    Sketcher.Constraint("Tangent", 0, 2, 1, 1),
    Sketcher.Constraint("Tangent", 1, 2, 2, 1),
    Sketcher.Constraint("Horizontal", 0),
    Sketcher.Constraint("Vertical", 2),
    Sketcher.Constraint("Radius", 1, 0.3),
    Sketcher.Constraint("DistanceX", 0, 2, 0, 1, 0.2),
    Sketcher.Constraint("DistanceX", 0, 1, -1, 1, 3.0),
    Sketcher.Constraint("DistanceY", -1, 1, 1, 3, 2.55),
    Sketcher.Constraint("DistanceY", 2, 2, 2, 1, 6.61181),
])
doc.recompute()

additivepipe2 = body5.newObject("PartDesign::AdditivePipe", "AdditivePipe001")
additivepipe2.Profile = sketch16
additivepipe2.Spine = (sketch17, ["Edge1", "Edge2", "Edge3"])
doc.recompute()

chamfer5 = body5.newObject("PartDesign::Chamfer", "Chamfer004")
chamfer5.Base = (additivepipe2, edges_at(additivepipe2, [(-3.5, -3.5, -4.062), (-3.5, -2.5, -4.062)]))
chamfer5.Size = 0.3
body6 = doc.addObject("PartDesign::Body", "Body005")

sketch18 = body6.newObject("Sketcher::SketchObject", "Sketch017")
sketch18.AttachmentSupport = (doc.getObject("YZ_Plane005"), [""])
sketch18.MapMode = "FlatFace"
sketch18.AttachmentOffset = App.Placement(App.Vector(0, 0, -2.5), App.Rotation())
sketch18.addGeometry([
    Part.LineSegment(App.Vector(4, 3.05, 0), App.Vector(4, 2.65, 0)),
    Part.LineSegment(App.Vector(4, 2.65, 0), App.Vector(2, 2.65, 0)),
    Part.LineSegment(App.Vector(2, 2.65, 0), App.Vector(2, 3.05, 0)),
    Part.LineSegment(App.Vector(2, 3.05, 0), App.Vector(4, 3.05, 0)),
], False)
sketch18.addConstraint([
    Sketcher.Constraint("Coincident", 0, 2, 1, 1),
    Sketcher.Constraint("Coincident", 1, 2, 2, 1),
    Sketcher.Constraint("Coincident", 2, 2, 3, 1),
    Sketcher.Constraint("Coincident", 3, 2, 0, 1),
    Sketcher.Constraint("Vertical", 0),
    Sketcher.Constraint("Horizontal", 1),
    Sketcher.Constraint("Vertical", 2),
    Sketcher.Constraint("Horizontal", 3),
    Sketcher.Constraint("DistanceX", 1, 2, 1, 1, 2.0),
    Sketcher.Constraint("DistanceY", 0, 2, 0, 1, 0.4),
    Sketcher.Constraint("DistanceX", -1, 1, 0, 2, 4.0),
    Sketcher.Constraint("DistanceY", -1, 1, 0, 2, 2.65),
])
pad11 = body6.newObject("PartDesign::Pad", "Pad010")
pad11.Profile = sketch18
pad11.Length = 0.5
pad11.Reversed = True

sketch19 = body6.newObject("Sketcher::SketchObject", "Sketch018")
sketch19.AttachmentSupport = (doc.getObject("YZ_Plane005"), [""])
sketch19.MapMode = "FlatFace"
sketch19.AttachmentOffset = App.Placement(App.Vector(0, 0, -3), App.Rotation())
sketch19.addGeometry([
    Part.LineSegment(App.Vector(3.5, 3.05, 0), App.Vector(3.5, 2.65, 0)),
    Part.LineSegment(App.Vector(3.5, 2.65, 0), App.Vector(2.5, 2.65, 0)),
    Part.LineSegment(App.Vector(2.5, 2.65, 0), App.Vector(2.5, 3.05, 0)),
    Part.LineSegment(App.Vector(2.5, 3.05, 0), App.Vector(3.5, 3.05, 0)),
], False)
sketch19.addConstraint([
    Sketcher.Constraint("Coincident", 0, 2, 1, 1),
    Sketcher.Constraint("Coincident", 1, 2, 2, 1),
    Sketcher.Constraint("Coincident", 2, 2, 3, 1),
    Sketcher.Constraint("Coincident", 3, 2, 0, 1),
    Sketcher.Constraint("Vertical", 0),
    Sketcher.Constraint("Horizontal", 1),
    Sketcher.Constraint("Vertical", 2),
    Sketcher.Constraint("Horizontal", 3),
    Sketcher.Constraint("DistanceX", 1, 2, 1, 1, 1.0),
    Sketcher.Constraint("DistanceY", 0, 2, 0, 1, 0.4),
    Sketcher.Constraint("DistanceX", -1, 1, 0, 2, 3.5),
    Sketcher.Constraint("DistanceY", -1, 1, 0, 2, 2.65),
])

sketch20 = body6.newObject("Sketcher::SketchObject", "Sketch019")
sketch20.AttachmentSupport = (doc.getObject("XZ_Plane005"), [""])
sketch20.MapMode = "FlatFace"
sketch20.AttachmentOffset = App.Placement(App.Vector(0, 0, -1), App.Rotation())
sketch20.addGeometry([
    Part.LineSegment(App.Vector(-3, 2.85, 0), App.Vector(-3.2, 2.85, 0)),
    Part.ArcOfCircle(Part.Circle(App.Vector(-3.2, 2.55, 0), App.Vector(0, 0, 1), 0.3), math.radians(90), math.radians(180)),
    Part.LineSegment(App.Vector(-3.5, 2.55, 0), App.Vector(-3.5, -4.06181, 0)),
], False)
sketch20.addConstraint([
    Sketcher.Constraint("Tangent", 0, 2, 1, 1),
    Sketcher.Constraint("Tangent", 1, 2, 2, 1),
    Sketcher.Constraint("Horizontal", 0),
    Sketcher.Constraint("Vertical", 2),
    Sketcher.Constraint("Radius", 1, 0.3),
    Sketcher.Constraint("DistanceX", 0, 2, 0, 1, 0.2),
    Sketcher.Constraint("DistanceX", 0, 1, -1, 1, 3.0),
    Sketcher.Constraint("DistanceY", -1, 1, 1, 3, 2.55),
    Sketcher.Constraint("DistanceY", 2, 2, 2, 1, 6.61181),
])
doc.recompute()

additivepipe3 = body6.newObject("PartDesign::AdditivePipe", "AdditivePipe002")
additivepipe3.Profile = sketch19
additivepipe3.Spine = (sketch20, ["Edge1", "Edge2", "Edge3"])
doc.recompute()

chamfer6 = body6.newObject("PartDesign::Chamfer", "Chamfer005")
chamfer6.Base = (additivepipe3, edges_at(additivepipe3, [(-3.5, 2.5, -4.062), (-3.5, 3.5, -4.062)]))
chamfer6.Size = 0.3

doc.recompute()
